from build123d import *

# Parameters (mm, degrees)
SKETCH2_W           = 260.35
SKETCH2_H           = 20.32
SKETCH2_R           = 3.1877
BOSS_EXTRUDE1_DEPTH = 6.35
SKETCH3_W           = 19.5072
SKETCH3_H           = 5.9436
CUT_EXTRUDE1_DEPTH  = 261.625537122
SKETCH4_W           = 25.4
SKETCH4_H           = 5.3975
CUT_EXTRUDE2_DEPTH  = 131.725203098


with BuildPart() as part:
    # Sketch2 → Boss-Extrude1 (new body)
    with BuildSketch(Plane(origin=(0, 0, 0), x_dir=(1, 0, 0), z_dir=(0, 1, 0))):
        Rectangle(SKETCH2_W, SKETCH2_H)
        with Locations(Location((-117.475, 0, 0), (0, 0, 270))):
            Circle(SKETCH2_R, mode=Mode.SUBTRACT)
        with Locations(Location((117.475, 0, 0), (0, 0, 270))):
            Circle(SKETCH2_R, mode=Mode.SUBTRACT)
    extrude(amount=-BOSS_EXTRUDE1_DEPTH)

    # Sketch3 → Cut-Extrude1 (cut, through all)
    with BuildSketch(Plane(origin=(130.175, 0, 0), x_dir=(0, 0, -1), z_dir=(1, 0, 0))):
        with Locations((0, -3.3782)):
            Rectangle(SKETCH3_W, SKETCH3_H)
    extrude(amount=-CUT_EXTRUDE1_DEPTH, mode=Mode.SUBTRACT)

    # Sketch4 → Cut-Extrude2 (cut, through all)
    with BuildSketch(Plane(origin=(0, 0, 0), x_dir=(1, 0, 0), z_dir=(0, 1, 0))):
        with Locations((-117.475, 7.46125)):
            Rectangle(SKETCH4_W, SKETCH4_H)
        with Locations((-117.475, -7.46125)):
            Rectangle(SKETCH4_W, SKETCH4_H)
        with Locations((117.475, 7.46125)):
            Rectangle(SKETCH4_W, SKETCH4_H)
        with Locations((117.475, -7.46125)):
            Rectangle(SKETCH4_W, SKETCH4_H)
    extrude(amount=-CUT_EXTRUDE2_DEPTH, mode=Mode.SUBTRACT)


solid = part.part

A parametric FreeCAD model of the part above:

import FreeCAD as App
import Part
import Sketcher

V = App.Vector
Q = App.Units.Quantity

doc = App.newDocument("Part")
body = doc.addObject("PartDesign::Body", "Body")

# Sketch on XZ plane
sketch1 = body.newObject("Sketcher::SketchObject", "Sketch")
sketch1.AttachmentSupport = (doc.getObject("XZ_Plane"), [""])
sketch1.MapMode = "FlatFace"
sketch1.addGeometry(Part.LineSegment(V(-130.2, -10.2, 0), V(-130.2, 10.2, 0)), False)
sketch1.addGeometry(Part.LineSegment(V(-130.2, 10.2, 0), V(130.2, 10.2, 0)), False)
sketch1.addGeometry(Part.LineSegment(V(130.2, 10.2, 0), V(130.2, -10.2, 0)), False)
sketch1.addGeometry(Part.LineSegment(V(130.2, -10.2, 0), V(-130.2, -10.2, 0)), False)
sketch1.addGeometry(Part.Circle(V(-117.5, 0, 0), V(0, 0, 1), 3.2), False)
sketch1.addGeometry(Part.Circle(V(117.5, 0, 0), V(0, 0, 1), 3.2), False)
sketch1.addConstraint(Sketcher.Constraint("Coincident", 0, 2, 1, 1))
sketch1.addConstraint(Sketcher.Constraint("Coincident", 1, 2, 2, 1))
sketch1.addConstraint(Sketcher.Constraint("Coincident", 2, 2, 3, 1))
sketch1.addConstraint(Sketcher.Constraint("Coincident", 3, 2, 0, 1))
sketch1.addConstraint(Sketcher.Constraint("Vertical", 0))
sketch1.addConstraint(Sketcher.Constraint("Horizontal", 1))
sketch1.addConstraint(Sketcher.Constraint("Vertical", 2))
sketch1.addConstraint(Sketcher.Constraint("Horizontal", 3))
sketch1.addConstraint(Sketcher.Constraint("Equal", 4, 5))
sketch1.addConstraint(Sketcher.Constraint("Symmetric", 4, 3, 5, 3, -1, 1))
sketch1.addConstraint(Sketcher.Constraint("Symmetric", 0, 2, 2, 2, -1, 1))
sketch1.addConstraint(Sketcher.Constraint("PointOnObject", 4, 3, -1))
sketch1.addConstraint(Sketcher.Constraint("Diameter", 4, Q("0.251 in")))
sketch1.addConstraint(Sketcher.Constraint("DistanceY", 0, 1, 0, 2, Q("0.8 in")))
sketch1.addConstraint(Sketcher.Constraint("DistanceX", 1, 1, 1, 2, Q("10.25 in")))
sketch1.addConstraint(Sketcher.Constraint("DistanceX", 0, 2, 4, 3, Q("0.5 in")))
pad1 = body.newObject("PartDesign::Pad", "Pad")
pad1.Profile = sketch1
pad1.Length = Q("0.25 in")

# Sketch on YZ plane
sketch2 = body.newObject("Sketcher::SketchObject", "Sketch001")
sketch2.AttachmentSupport = (doc.getObject("YZ_Plane"), [""])
sketch2.MapMode = "FlatFace"
sketch2.AttachmentOffset = App.Placement(V(0, 0, 5.125 * 25.4), App.Rotation())
sketch2.addGeometry(Part.LineSegment(V(0, 10, 0), V(-6, 10, 0)), False)
sketch2.addGeometry(Part.LineSegment(V(-6, 10, 0), V(-6, -10, 0)), False)
sketch2.addGeometry(Part.LineSegment(V(-6, -10, 0), V(0, -10, 0)), False)
sketch2.addGeometry(Part.LineSegment(V(0, -10, 0), V(0, 10, 0)), False)
sketch2.addConstraint(Sketcher.Constraint("Coincident", 0, 2, 1, 1))
sketch2.addConstraint(Sketcher.Constraint("Coincident", 1, 2, 2, 1))
sketch2.addConstraint(Sketcher.Constraint("Coincident", 2, 2, 3, 1))
sketch2.addConstraint(Sketcher.Constraint("Coincident", 3, 2, 0, 1))
sketch2.addConstraint(Sketcher.Constraint("Horizontal", 0))
sketch2.addConstraint(Sketcher.Constraint("Vertical", 1))
sketch2.addConstraint(Sketcher.Constraint("Horizontal", 2))
sketch2.addConstraint(Sketcher.Constraint("Vertical", 3))
sketch2.addConstraint(Sketcher.Constraint("DistanceX", 0, 2, 0, 1, Q("0.234 in")))
sketch2.addConstraint(Sketcher.Constraint("DistanceY", 1, 2, 1, 1, Q("0.768 in")))
sketch2.addConstraint(Sketcher.Constraint("DistanceX", 0, 2, -1, 1, Q("0.25 in")))
sketch2.addConstraint(Sketcher.Constraint("DistanceY", -1, 1, 0, 2, Q("0.384 in")))
pocket1 = body.newObject("PartDesign::Pocket", "Pocket")
pocket1.Profile = sketch2
pocket1.Type = "ThroughAll"

# Sketch on XZ plane
sketch3 = body.newObject("Sketcher::SketchObject", "Sketch002")
sketch3.AttachmentSupport = (doc.getObject("XZ_Plane"), [""])
sketch3.MapMode = "FlatFace"
sketch3.addGeometry(Part.LineSegment(V(-130, -10, 0), V(-130, -5, 0)), False)
sketch3.addGeometry(Part.LineSegment(V(-130, -5, 0), V(-105, -5, 0)), False)
sketch3.addGeometry(Part.LineSegment(V(-105, -5, 0), V(-105, -10, 0)), False)
sketch3.addGeometry(Part.LineSegment(V(-105, -10, 0), V(-130, -10, 0)), False)
sketch3.addGeometry(Part.LineSegment(V(-130, 5, 0), V(-130, 10, 0)), False)
sketch3.addGeometry(Part.LineSegment(V(-130, 10, 0), V(-105, 10, 0)), False)
sketch3.addGeometry(Part.LineSegment(V(-105, 10, 0), V(-105, 5, 0)), False)
sketch3.addGeometry(Part.LineSegment(V(-105, 5, 0), V(-130, 5, 0)), False)
sketch3.addGeometry(Part.LineSegment(V(105, -10, 0), V(105, -5, 0)), False)
sketch3.addGeometry(Part.LineSegment(V(105, -5, 0), V(130, -5, 0)), False)
sketch3.addGeometry(Part.LineSegment(V(130, -5, 0), V(130, -10, 0)), False)
sketch3.addGeometry(Part.LineSegment(V(130, -10, 0), V(105, -10, 0)), False)
sketch3.addGeometry(Part.LineSegment(V(105, 5, 0), V(105, 10, 0)), False)
sketch3.addGeometry(Part.LineSegment(V(105, 10, 0), V(130, 10, 0)), False)
sketch3.addGeometry(Part.LineSegment(V(130, 10, 0), V(130, 5, 0)), False)
sketch3.addGeometry(Part.LineSegment(V(130, 5, 0), V(105, 5, 0)), False)
sketch3.addConstraint(Sketcher.Constraint("Coincident", 0, 2, 1, 1))
sketch3.addConstraint(Sketcher.Constraint("Coincident", 1, 2, 2, 1))
sketch3.addConstraint(Sketcher.Constraint("Coincident", 2, 2, 3, 1))
sketch3.addConstraint(Sketcher.Constraint("Coincident", 3, 2, 0, 1))
sketch3.addConstraint(Sketcher.Constraint("Coincident", 4, 2, 5, 1))
sketch3.addConstraint(Sketcher.Constraint("Coincident", 5, 2, 6, 1))
sketch3.addConstraint(Sketcher.Constraint("Coincident", 6, 2, 7, 1))
sketch3.addConstraint(Sketcher.Constraint("Coincident", 7, 2, 4, 1))
sketch3.addConstraint(Sketcher.Constraint("Coincident", 8, 2, 9, 1))
sketch3.addConstraint(Sketcher.Constraint("Coincident", 9, 2, 10, 1))
sketch3.addConstraint(Sketcher.Constraint("Coincident", 10, 2, 11, 1))
sketch3.addConstraint(Sketcher.Constraint("Coincident", 11, 2, 8, 1))
sketch3.addConstraint(Sketcher.Constraint("Coincident", 12, 2, 13, 1))
sketch3.addConstraint(Sketcher.Constraint("Coincident", 13, 2, 14, 1))
sketch3.addConstraint(Sketcher.Constraint("Coincident", 14, 2, 15, 1))
sketch3.addConstraint(Sketcher.Constraint("Coincident", 15, 2, 12, 1))
sketch3.addConstraint(Sketcher.Constraint("Vertical", 0))
sketch3.addConstraint(Sketcher.Constraint("Horizontal", 1))
sketch3.addConstraint(Sketcher.Constraint("Vertical", 2))
sketch3.addConstraint(Sketcher.Constraint("Horizontal", 3))
sketch3.addConstraint(Sketcher.Constraint("Vertical", 4))
sketch3.addConstraint(Sketcher.Constraint("Horizontal", 5))
sketch3.addConstraint(Sketcher.Constraint("Vertical", 6))
sketch3.addConstraint(Sketcher.Constraint("Horizontal", 7))
sketch3.addConstraint(Sketcher.Constraint("Vertical", 8))
sketch3.addConstraint(Sketcher.Constraint("Horizontal", 9))
sketch3.addConstraint(Sketcher.Constraint("Vertical", 10))
sketch3.addConstraint(Sketcher.Constraint("Horizontal", 11))
sketch3.addConstraint(Sketcher.Constraint("Vertical", 12))
sketch3.addConstraint(Sketcher.Constraint("Horizontal", 13))
sketch3.addConstraint(Sketcher.Constraint("Vertical", 14))
sketch3.addConstraint(Sketcher.Constraint("Horizontal", 15))
sketch3.addConstraint(Sketcher.Constraint("Symmetric", 6, 2, 8, 2, -1, 1))
sketch3.addConstraint(Sketcher.Constraint("Symmetric", 4, 2, 10, 2, -1, 1))
sketch3.addConstraint(Sketcher.Constraint("Symmetric", 2, 2, 12, 2, -1, 1))
sketch3.addConstraint(Sketcher.Constraint("Symmetric", 0, 2, 14, 2, -1, 1))
sketch3.addConstraint(Sketcher.Constraint("Symmetric", 1, 2, 8, 2, -2))
sketch3.addConstraint(Sketcher.Constraint("Symmetric", 3, 2, 10, 2, -2))
sketch3.addConstraint(Sketcher.Constraint("DistanceX", 1, 1, 1, 2, Q("1 in")))
sketch3.addConstraint(Sketcher.Constraint("DistanceY", 2, 2, -1, 1, Q("0.4 in")))
sketch3.addConstraint(Sketcher.Constraint("DistanceX", 1, 2, 8, 2, Q("8.25 in")))
sketch3.addConstraint(Sketcher.Constraint("DistanceY", 0, 1, 0, 2, Q("0.2125 in")))
pocket2 = body.newObject("PartDesign::Pocket", "Pocket001")
pocket2.Profile = sketch3
pocket2.Type = "ThroughAll"
pocket2.Reversed = True

doc.recompute()
